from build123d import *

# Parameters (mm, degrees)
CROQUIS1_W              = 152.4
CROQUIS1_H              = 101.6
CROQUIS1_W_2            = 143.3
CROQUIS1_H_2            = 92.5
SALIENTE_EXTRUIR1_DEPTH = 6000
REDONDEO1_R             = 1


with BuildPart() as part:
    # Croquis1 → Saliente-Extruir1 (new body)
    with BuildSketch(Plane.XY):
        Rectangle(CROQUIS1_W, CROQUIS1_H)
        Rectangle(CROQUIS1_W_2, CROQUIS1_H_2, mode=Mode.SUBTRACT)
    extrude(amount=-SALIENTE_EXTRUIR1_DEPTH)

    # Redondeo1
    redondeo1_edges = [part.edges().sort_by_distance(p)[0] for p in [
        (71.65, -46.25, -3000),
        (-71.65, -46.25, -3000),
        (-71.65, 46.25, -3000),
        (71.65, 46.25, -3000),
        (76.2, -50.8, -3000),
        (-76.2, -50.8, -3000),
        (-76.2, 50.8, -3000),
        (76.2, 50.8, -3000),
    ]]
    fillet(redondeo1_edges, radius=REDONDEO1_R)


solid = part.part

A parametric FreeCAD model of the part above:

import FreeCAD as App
import Part
import Sketcher


def edges_at(feature, points):
    """Names of the edges that pass closest to the given points."""
    edges = feature.Shape.Edges
    near = lambda p: min(range(len(edges)), key=lambda i: edges[i].distToShape(Part.Vertex(*p))[0])
    return sorted({f"Edge{near(p) + 1}" for p in points})


def add_polygon(sketch, points):
    """Adds a closed chain of lines whose ends are joined by coincident constraints."""
    first, n = sketch.GeometryCount, len(points)
    for a, b in zip(points, points[1:] + points[:1]):
        sketch.addGeometry(Part.LineSegment(App.Vector(*a, 0), App.Vector(*b, 0)), False)
    for i in range(n):
        sketch.addConstraint(Sketcher.Constraint("Coincident", first + i, 2, first + (i + 1) % n, 1))

doc = App.newDocument("Part")
body = doc.addObject("PartDesign::Body", "Body")

sketch1 = body.newObject("Sketcher::SketchObject", "Sketch")
sketch1.AttachmentSupport = (doc.getObject("XY_Plane"), [""])
sketch1.MapMode = "FlatFace"
add_polygon(sketch1, [(-76.2, 50.8), (-76.2, -50.8), (76.2, -50.8), (76.2, 50.8)])
add_polygon(sketch1, [(71.65, -46.25), (-71.65, -46.25), (-71.65, 46.25), (71.65, 46.25)])
sketch1.addConstraint([
    Sketcher.Constraint("Vertical", 0),
    Sketcher.Constraint("Horizontal", 1),
    Sketcher.Constraint("Vertical", 2),
    Sketcher.Constraint("Horizontal", 3),
    Sketcher.Constraint("Horizontal", 4),
    Sketcher.Constraint("Vertical", 5),
    Sketcher.Constraint("Horizontal", 6),
    Sketcher.Constraint("Vertical", 7),
    Sketcher.Constraint("Symmetric", 0, 2, 2, 2, -1, 1),
    Sketcher.Constraint("Symmetric", 4, 2, 6, 2, -1, 1),
    Sketcher.Constraint("DistanceX", 1, 1, 1, 2, 152.4),
    Sketcher.Constraint("DistanceX", 4, 2, 4, 1, 143.3),
    Sketcher.Constraint("DistanceY", 0, 2, 0, 1, 101.6),
    Sketcher.Constraint("DistanceY", 5, 1, 5, 2, 92.5),
])
pad1 = body.newObject("PartDesign::Pad", "Pad")
pad1.Profile = sketch1
pad1.Length = 6000
pad1.Reversed = True
doc.recompute()

fillet = body.newObject("PartDesign::Fillet", "Fillet")
fillet.Base = (pad1, edges_at(pad1, [
    (71.65, -46.25, -3000),
    (-71.65, -46.25, -3000),
    (-71.65, 46.25, -3000),
    (71.65, 46.25, -3000),
    (76.2, -50.8, -3000),
    (-76.2, -50.8, -3000),
    (-76.2, 50.8, -3000),
    (76.2, 50.8, -3000),
]))
fillet.Radius = 1

doc.recompute()
